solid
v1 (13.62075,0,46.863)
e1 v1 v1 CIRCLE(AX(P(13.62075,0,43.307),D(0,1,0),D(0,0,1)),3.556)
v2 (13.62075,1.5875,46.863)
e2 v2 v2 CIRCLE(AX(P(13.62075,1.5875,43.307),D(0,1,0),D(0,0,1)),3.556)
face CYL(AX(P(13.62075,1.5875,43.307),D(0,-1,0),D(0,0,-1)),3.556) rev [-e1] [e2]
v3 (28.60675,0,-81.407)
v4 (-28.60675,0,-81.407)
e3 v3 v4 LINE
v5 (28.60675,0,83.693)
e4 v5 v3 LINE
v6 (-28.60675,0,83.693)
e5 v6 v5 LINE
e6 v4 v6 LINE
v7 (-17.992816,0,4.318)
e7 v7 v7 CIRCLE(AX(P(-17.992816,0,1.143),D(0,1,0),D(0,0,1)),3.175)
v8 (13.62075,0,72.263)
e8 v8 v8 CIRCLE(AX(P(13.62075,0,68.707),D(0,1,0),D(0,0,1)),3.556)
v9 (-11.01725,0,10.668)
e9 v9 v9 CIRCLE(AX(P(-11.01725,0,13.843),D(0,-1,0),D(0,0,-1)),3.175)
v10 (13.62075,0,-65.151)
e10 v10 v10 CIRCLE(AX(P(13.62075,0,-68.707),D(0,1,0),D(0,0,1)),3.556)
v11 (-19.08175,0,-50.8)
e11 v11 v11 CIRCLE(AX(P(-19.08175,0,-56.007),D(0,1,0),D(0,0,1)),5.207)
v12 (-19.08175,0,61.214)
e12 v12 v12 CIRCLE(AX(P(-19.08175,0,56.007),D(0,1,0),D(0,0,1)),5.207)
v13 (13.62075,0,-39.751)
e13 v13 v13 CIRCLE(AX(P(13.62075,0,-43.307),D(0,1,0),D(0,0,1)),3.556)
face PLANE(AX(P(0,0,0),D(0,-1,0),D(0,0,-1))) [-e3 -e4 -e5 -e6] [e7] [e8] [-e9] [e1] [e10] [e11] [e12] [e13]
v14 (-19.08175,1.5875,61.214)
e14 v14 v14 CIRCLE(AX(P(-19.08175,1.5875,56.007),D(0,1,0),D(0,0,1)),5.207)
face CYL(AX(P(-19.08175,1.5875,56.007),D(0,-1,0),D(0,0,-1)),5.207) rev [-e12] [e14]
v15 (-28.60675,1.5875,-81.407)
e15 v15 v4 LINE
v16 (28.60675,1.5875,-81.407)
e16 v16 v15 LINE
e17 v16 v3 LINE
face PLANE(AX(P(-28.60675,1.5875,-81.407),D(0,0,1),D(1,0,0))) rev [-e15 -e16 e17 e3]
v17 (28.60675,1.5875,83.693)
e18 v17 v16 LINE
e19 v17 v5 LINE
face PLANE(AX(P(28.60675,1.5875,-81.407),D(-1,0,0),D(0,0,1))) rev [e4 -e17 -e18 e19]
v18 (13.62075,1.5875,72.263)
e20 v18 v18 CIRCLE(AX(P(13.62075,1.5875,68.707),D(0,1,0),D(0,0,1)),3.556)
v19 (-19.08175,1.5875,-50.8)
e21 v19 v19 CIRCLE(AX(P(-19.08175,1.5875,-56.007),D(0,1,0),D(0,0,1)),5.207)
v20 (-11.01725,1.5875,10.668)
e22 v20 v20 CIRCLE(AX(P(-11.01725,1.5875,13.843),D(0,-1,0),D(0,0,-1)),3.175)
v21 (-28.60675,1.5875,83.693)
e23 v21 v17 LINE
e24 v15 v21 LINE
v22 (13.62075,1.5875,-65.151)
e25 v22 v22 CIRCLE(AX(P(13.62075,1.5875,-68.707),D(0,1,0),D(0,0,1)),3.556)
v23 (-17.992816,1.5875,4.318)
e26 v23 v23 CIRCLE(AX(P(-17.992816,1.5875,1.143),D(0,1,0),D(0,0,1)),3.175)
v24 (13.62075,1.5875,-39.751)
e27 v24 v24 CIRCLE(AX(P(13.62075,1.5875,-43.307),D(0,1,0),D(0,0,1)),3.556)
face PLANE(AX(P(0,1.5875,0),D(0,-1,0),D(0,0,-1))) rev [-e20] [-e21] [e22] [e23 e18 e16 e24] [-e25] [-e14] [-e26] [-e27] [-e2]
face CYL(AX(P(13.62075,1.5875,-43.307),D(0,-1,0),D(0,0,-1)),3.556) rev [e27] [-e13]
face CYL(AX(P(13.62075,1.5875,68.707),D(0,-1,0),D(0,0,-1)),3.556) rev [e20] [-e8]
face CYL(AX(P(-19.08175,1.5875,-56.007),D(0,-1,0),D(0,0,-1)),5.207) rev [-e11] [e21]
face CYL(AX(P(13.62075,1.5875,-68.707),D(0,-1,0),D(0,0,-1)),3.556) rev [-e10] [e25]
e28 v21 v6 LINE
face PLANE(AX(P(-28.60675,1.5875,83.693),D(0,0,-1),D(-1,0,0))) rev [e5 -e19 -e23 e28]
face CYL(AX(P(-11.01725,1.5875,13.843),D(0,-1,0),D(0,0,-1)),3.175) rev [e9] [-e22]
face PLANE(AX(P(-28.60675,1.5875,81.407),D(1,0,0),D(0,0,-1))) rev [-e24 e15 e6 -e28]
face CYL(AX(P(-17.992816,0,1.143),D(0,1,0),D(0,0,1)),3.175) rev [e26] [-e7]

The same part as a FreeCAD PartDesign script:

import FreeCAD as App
import Part
import Sketcher
from FreeCAD import Vector
Q = App.Units.Quantity

doc = App.newDocument("Part")
body = doc.addObject("PartDesign::Body", "Body")

# Sketch on XZ plane
sketch1 = body.newObject("Sketcher::SketchObject", "Sketch")
sketch1.AttachmentSupport = (doc.getObject("XZ_Plane"), [""])
sketch1.MapMode = "FlatFace"
sketch1.addGeometry(Part.LineSegment(Vector(28.6, -81.4, 0), Vector(-28.6, -81.4, 0)), False)
sketch1.addGeometry(Part.LineSegment(Vector(-28.6, -81.4, 0), Vector(-28.6, 83.7, 0)), False)
sketch1.addGeometry(Part.LineSegment(Vector(-28.6, 83.7, 0), Vector(28.6, 83.7, 0)), False)
sketch1.addGeometry(Part.LineSegment(Vector(28.6, 83.7, 0), Vector(28.6, -81.4, 0)), False)
sketch1.addGeometry(Part.Circle(Vector(13.6, 68.7, 0), Vector(0, 0, 1), 3.6), False)
sketch1.addGeometry(Part.Circle(Vector(13.6, 43.3, 0), Vector(0, 0, 1), 3.6), False)
sketch1.addGeometry(Part.Circle(Vector(-19.1, 56, 0), Vector(0, 0, 1), 5.2), False)
sketch1.addGeometry(Part.Circle(Vector(13.6, -43.3, 0), Vector(0, 0, 1), 3.6), False)
sketch1.addGeometry(Part.Circle(Vector(13.6, -68.7, 0), Vector(0, 0, 1), 3.6), False)
sketch1.addGeometry(Part.Circle(Vector(-19.1, -56, 0), Vector(0, 0, 1), 5.2), False)
sketch1.addConstraint(Sketcher.Constraint("Coincident", 0, 2, 1, 1))
sketch1.addConstraint(Sketcher.Constraint("Coincident", 1, 2, 2, 1))
sketch1.addConstraint(Sketcher.Constraint("Coincident", 2, 2, 3, 1))
sketch1.addConstraint(Sketcher.Constraint("Coincident", 3, 2, 0, 1))
sketch1.addConstraint(Sketcher.Constraint("Horizontal", 0))
sketch1.addConstraint(Sketcher.Constraint("Vertical", 1))
sketch1.addConstraint(Sketcher.Constraint("Horizontal", 2))
sketch1.addConstraint(Sketcher.Constraint("Vertical", 3))
sketch1.addConstraint(Sketcher.Constraint("Equal", 4, 5))
sketch1.addConstraint(Sketcher.Constraint("Equal", 5, 7))
sketch1.addConstraint(Sketcher.Constraint("Equal", 7, 8))
sketch1.addConstraint(Sketcher.Constraint("Equal", 6, 9))
sketch1.addConstraint(Sketcher.Constraint("Symmetric", 5, 3, 7, 3, -1))
sketch1.addConstraint(Sketcher.Constraint("Symmetric", 4, 3, 8, 3, -1))
sketch1.addConstraint(Sketcher.Constraint("Symmetric", 6, 3, 9, 3, -1))
sketch1.addConstraint(Sketcher.Constraint("Vertical", 4, 3, 5, 3))
sketch1.addConstraint(Sketcher.Constraint("Diameter", 4, Q("0.28 in")))
sketch1.addConstraint(Sketcher.Constraint("Diameter", 6, Q("0.41 in")))
sketch1.addConstraint(Sketcher.Constraint("DistanceY", 1, 1, 1, 2, Q("6.5 in")))
sketch1.addConstraint(Sketcher.Constraint("DistanceY", 5, 3, 4, 3, Q("1 in")))
sketch1.addConstraint(Sketcher.Constraint("DistanceY", 0, 2, 9, 3, Q("1 in")))
sketch1.addConstraint(Sketcher.Constraint("DistanceY", 7, 3, 1, 2, Q("5 in")))
sketch1.addConstraint(Sketcher.Constraint("DistanceY", 7, 3, 5, 3, Q("3.41 in")))
sketch1.addConstraint(Sketcher.Constraint("DistanceX", 4, 3, 2, 2, Q("0.59 in")))
sketch1.addConstraint(Sketcher.Constraint("DistanceX", 0, 2, 0, 1, Q("2.2525 in")))
sketch1.addConstraint(Sketcher.Constraint("DistanceX", 0, 2, 9, 3, Q("0.375 in")))
sketch1.addConstraint(Sketcher.Constraint("DistanceX", -1, 1, 4, 3, Q("13.62075 mm")))
pad1 = body.newObject("PartDesign::Pad", "Pad")
pad1.Profile = sketch1
pad1.Length = Q("0.0625 in")
pad1.Reversed = True

# Sketch on XZ plane
sketch2 = body.newObject("Sketcher::SketchObject", "Sketch001")
sketch2.AttachmentSupport = (doc.getObject("XZ_Plane"), [""])
sketch2.MapMode = "FlatFace"
sketch2.AttachmentOffset = App.Placement(Vector(0, 0, -0.0625 * 25.4), App.Rotation())
sketch2.addGeometry(Part.Circle(Vector(-18, 1.1, 0), Vector(0, 0, 1), 3.2), False)
sketch2.addConstraint(Sketcher.Constraint("Diameter", 0, Q("0.25 in")))
sketch2.addConstraint(Sketcher.Constraint("DistanceY", -1, 1, 0, 3, Q("0.045 in")))
sketch2.addConstraint(Sketcher.Constraint("DistanceX", 0, 3, -1, 1, Q("17.992816 mm")))
pocket1 = body.newObject("PartDesign::Pocket", "Pocket")
pocket1.Profile = sketch2
pocket1.Type = "ThroughAll"
pocket1.Reversed = True

# Sketch on XZ plane
sketch3 = body.newObject("Sketcher::SketchObject", "Sketch002")
sketch3.AttachmentSupport = (doc.getObject("XZ_Plane"), [""])
sketch3.MapMode = "FlatFace"
sketch3.addGeometry(Part.Circle(Vector(-11, 13.8, 0), Vector(0, 0, 1), 3.2), False)
sketch3.addConstraint(Sketcher.Constraint("Diameter", 0, Q("0.25 in")))
sketch3.addConstraint(Sketcher.Constraint("DistanceY", -1, 1, 0, 3, Q("0.545 in")))
sketch3.addConstraint(Sketcher.Constraint("DistanceX", 0, 3, -1, 1, Q("11.01725 mm")))
pocket2 = body.newObject("PartDesign::Pocket", "Pocket001")
pocket2.Profile = sketch3
pocket2.Type = "ThroughAll"

doc.recompute()
